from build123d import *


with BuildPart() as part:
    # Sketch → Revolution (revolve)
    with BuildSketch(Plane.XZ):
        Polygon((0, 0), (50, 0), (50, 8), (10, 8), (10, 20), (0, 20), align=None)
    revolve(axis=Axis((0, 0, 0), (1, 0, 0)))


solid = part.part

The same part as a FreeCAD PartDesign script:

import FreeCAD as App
import Part
import Sketcher
from FreeCAD import Vector
Q = App.Units.Quantity

doc = App.newDocument("Part")
body = doc.addObject("PartDesign::Body", "Body")

# Sketch on XZ plane
sketch1 = body.newObject("Sketcher::SketchObject", "Sketch")
sketch1.AttachmentSupport = (doc.getObject("XZ_Plane"), [""])
sketch1.MapMode = "FlatFace"
sketch1.addGeometry([
    Part.LineSegment(Vector(0, 0, 0), Vector(50, 0, 0)),  # 0
    Part.LineSegment(Vector(50, 0, 0), Vector(50, 8, 0)),  # 1
    Part.LineSegment(Vector(50, 8, 0), Vector(10, 8, 0)),  # 2
    Part.LineSegment(Vector(10, 8, 0), Vector(10, 20, 0)),  # 3
    Part.LineSegment(Vector(10, 20, 0), Vector(0, 20, 0)),  # 4
    Part.LineSegment(Vector(0, 20, 0), Vector(0, 0, 0)),  # 5
], False)
sketch1.addConstraint([
    Sketcher.Constraint("Coincident", 0, 2, 1, 1),
    Sketcher.Constraint("Coincident", 1, 2, 2, 1),
    Sketcher.Constraint("Coincident", 2, 2, 3, 1),
    Sketcher.Constraint("Coincident", 3, 2, 4, 1),
    Sketcher.Constraint("Coincident", 4, 2, 5, 1),
    Sketcher.Constraint("Coincident", 5, 2, 0, 1),
    Sketcher.Constraint("Horizontal", 0),
    Sketcher.Constraint("Vertical", 1),
    Sketcher.Constraint("Horizontal", 2),
    Sketcher.Constraint("Vertical", 3),
    Sketcher.Constraint("Horizontal", 4),
    Sketcher.Constraint("Vertical", 5),
    Sketcher.Constraint("Coincident", 5, 2, -1, 1),
    Sketcher.Constraint("DistanceX", 0, 1, 0, 2, Q("50 mm")),
    Sketcher.Constraint("DistanceX", 2, 2, 2, 1, Q("40 mm")),
    Sketcher.Constraint("DistanceY", 1, 1, 1, 2, Q("8 mm")),
    Sketcher.Constraint("DistanceY", 3, 1, 3, 2, Q("12 mm")),
])
revolution = body.newObject("PartDesign::Revolution", "Revolution")
revolution.Profile = sketch1
revolution.ReferenceAxis = (sketch1, ["H_Axis"])
revolution.Angle = 360

doc.recompute()
